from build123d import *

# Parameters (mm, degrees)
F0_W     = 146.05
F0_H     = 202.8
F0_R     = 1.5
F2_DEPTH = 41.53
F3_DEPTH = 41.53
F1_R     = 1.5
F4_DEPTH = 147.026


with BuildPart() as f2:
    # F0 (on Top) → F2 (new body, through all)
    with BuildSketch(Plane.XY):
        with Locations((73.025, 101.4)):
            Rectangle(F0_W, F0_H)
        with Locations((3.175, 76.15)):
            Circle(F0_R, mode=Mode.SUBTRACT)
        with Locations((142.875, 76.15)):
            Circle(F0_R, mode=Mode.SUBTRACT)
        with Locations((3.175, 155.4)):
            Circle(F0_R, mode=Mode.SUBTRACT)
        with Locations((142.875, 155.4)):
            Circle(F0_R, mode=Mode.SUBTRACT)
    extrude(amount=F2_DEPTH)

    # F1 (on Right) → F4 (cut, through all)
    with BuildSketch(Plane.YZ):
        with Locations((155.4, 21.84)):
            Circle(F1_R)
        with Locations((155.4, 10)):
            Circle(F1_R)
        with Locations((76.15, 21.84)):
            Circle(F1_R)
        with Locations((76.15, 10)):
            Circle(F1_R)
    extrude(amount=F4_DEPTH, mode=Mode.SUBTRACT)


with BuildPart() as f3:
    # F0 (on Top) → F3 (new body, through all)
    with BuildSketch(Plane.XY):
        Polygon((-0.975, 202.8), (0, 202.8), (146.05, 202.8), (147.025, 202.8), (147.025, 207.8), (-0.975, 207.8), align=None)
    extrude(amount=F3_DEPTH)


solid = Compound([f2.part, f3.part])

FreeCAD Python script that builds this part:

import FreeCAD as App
import Part
import Sketcher
Q = App.Units.Quantity


def add_polygon(sketch, points):
    """Adds a closed chain of lines whose ends are joined by coincident constraints."""
    first, n = sketch.GeometryCount, len(points)
    for a, b in zip(points, points[1:] + points[:1]):
        sketch.addGeometry(Part.LineSegment(App.Vector(*a, 0), App.Vector(*b, 0)), False)
    for i in range(n):
        sketch.addConstraint(Sketcher.Constraint("Coincident", first + i, 2, first + (i + 1) % n, 1))

doc = App.newDocument("Part")
params = doc.addObject("Spreadsheet::Sheet", "Params")
for row, (alias, value) in enumerate([
    ("sketch1_diameter", "3 mm"),
    ("sketch1_height", "202.8 mm"),
    ("sketch1_width", "146.05 mm"),
    ("pad1_length", "41.53 mm"),
    ("sketch2_diameter", "3 mm"),
    ("sketch3_width", "148 mm"),
    ("sketch3_height", "5 mm"),
    ("pad2_length", "41.53 mm"),
], start=1):
    params.set(f"A{row}", alias)
    params.set(f"B{row}", "=" + value)
    params.setAlias(f"B{row}", alias)

body = doc.addObject("PartDesign::Body", "Body")

# Sketch on XY plane
sketch1 = body.newObject("Sketcher::SketchObject", "Sketch")
sketch1.AttachmentSupport = (doc.getObject("XY_Plane"), [""])
sketch1.MapMode = "FlatFace"
add_polygon(sketch1, [(0, 202.8), (0, 0), (146.1, 0), (146.1, 202.8)])  # lines 0-3
sketch1.addGeometry(Part.Circle(App.Vector(3.2, 76.2, 0), App.Vector(0, 0, 1), 1.5), False)  # 4
sketch1.addGeometry(Part.Circle(App.Vector(142.9, 76.2, 0), App.Vector(0, 0, 1), 1.5), False)  # 5
sketch1.addGeometry(Part.Circle(App.Vector(3.2, 155.4, 0), App.Vector(0, 0, 1), 1.5), False)  # 6
sketch1.addGeometry(Part.Circle(App.Vector(142.9, 155.4, 0), App.Vector(0, 0, 1), 1.5), False)  # 7
sketch1.addConstraint([
    Sketcher.Constraint("Vertical", 0),
    Sketcher.Constraint("Horizontal", 1),
    Sketcher.Constraint("Vertical", 2),
    Sketcher.Constraint("Horizontal", 3),
    Sketcher.Constraint("Coincident", 0, 2, -1, 1),
    Sketcher.Constraint("Equal", 4, 5),
    Sketcher.Constraint("Equal", 5, 6),
    Sketcher.Constraint("Equal", 6, 7),
    Sketcher.Constraint("Horizontal", 4, 3, 5, 3),
    Sketcher.Constraint("Horizontal", 6, 3, 7, 3),
    Sketcher.Constraint("Vertical", 4, 3, 6, 3),
    Sketcher.Constraint("Vertical", 5, 3, 7, 3),
    Sketcher.Constraint("Diameter", 4, Q("3 mm")),
    Sketcher.Constraint("DistanceY", 0, 2, 0, 1, Q("202.8 mm")),
    Sketcher.Constraint("DistanceX", 1, 1, 1, 2, Q("146.05 mm")),
    Sketcher.Constraint("DistanceY", -1, 1, 6, 3, Q("155.4 mm")),
    Sketcher.Constraint("DistanceX", 4, 3, 5, 3, Q("139.7 mm")),
    Sketcher.Constraint("DistanceY", -1, 1, 4, 3, Q("76.15 mm")),
    Sketcher.Constraint("DistanceX", -1, 1, 4, 3, Q("3.175 mm")),
])
sketch1.setExpression("Constraints[16]", "Params.sketch1_diameter")
sketch1.setExpression("Constraints[17]", "Params.sketch1_height")
sketch1.setExpression("Constraints[18]", "Params.sketch1_width")
pad1 = body.newObject("PartDesign::Pad", "Pad")
pad1.Profile = sketch1
pad1.setExpression("Length", "Params.pad1_length")

# Sketch on YZ plane
sketch2 = body.newObject("Sketcher::SketchObject", "Sketch001")
sketch2.AttachmentSupport = (doc.getObject("YZ_Plane"), [""])
sketch2.MapMode = "FlatFace"
sketch2.addGeometry([
    Part.Circle(App.Vector(155.4, 21.8, 0), App.Vector(0, 0, 1), 1.5),
    Part.Circle(App.Vector(155.4, 10, 0), App.Vector(0, 0, 1), 1.5),
    Part.Circle(App.Vector(76.2, 21.8, 0), App.Vector(0, 0, 1), 1.5),
    Part.Circle(App.Vector(76.2, 10, 0), App.Vector(0, 0, 1), 1.5),
], False)
sketch2.addConstraint([
    Sketcher.Constraint("Equal", 0, 1),
    Sketcher.Constraint("Equal", 1, 2),
    Sketcher.Constraint("Equal", 2, 3),
    Sketcher.Constraint("Horizontal", 0, 3, 2, 3),
    Sketcher.Constraint("Horizontal", 1, 3, 3, 3),
    Sketcher.Constraint("Vertical", 0, 3, 1, 3),
    Sketcher.Constraint("Vertical", 2, 3, 3, 3),
    Sketcher.Constraint("Diameter", 0, Q("3 mm")),
    Sketcher.Constraint("DistanceY", -1, 1, 1, 3, Q("10 mm")),
    Sketcher.Constraint("DistanceX", -1, 1, 0, 3, Q("155.4 mm")),
    Sketcher.Constraint("DistanceY", -1, 1, 0, 3, Q("21.84 mm")),
    Sketcher.Constraint("DistanceX", -1, 1, 2, 3, Q("76.15 mm")),
])
sketch2.setExpression("Constraints[7]", "Params.sketch2_diameter")
pocket1 = body.newObject("PartDesign::Pocket", "Pocket")
pocket1.Profile = sketch2
pocket1.Type = "ThroughAll"
pocket1.Reversed = True
body2 = doc.addObject("PartDesign::Body", "Body001")

# Sketch on XY plane
sketch3 = body2.newObject("Sketcher::SketchObject", "Sketch002")
sketch3.AttachmentSupport = (doc.getObject("XY_Plane001"), [""])
sketch3.MapMode = "FlatFace"
add_polygon(sketch3, [(-1, 203), (147, 203), (147, 208), (-1, 208)])  # lines 0-3
sketch3.addConstraint([
    Sketcher.Constraint("Horizontal", 0),
    Sketcher.Constraint("Vertical", 1),
    Sketcher.Constraint("Horizontal", 2),
    Sketcher.Constraint("Vertical", 3),
    Sketcher.Constraint("DistanceX", 0, 1, 0, 2, Q("148 mm")),
    Sketcher.Constraint("DistanceY", 1, 1, 1, 2, Q("5 mm")),
    Sketcher.Constraint("DistanceY", -1, 1, 0, 2, Q("202.8 mm")),
    Sketcher.Constraint("DistanceX", -1, 1, 0, 2, Q("147.025 mm")),
])
sketch3.setExpression("Constraints[8]", "Params.sketch3_width")
sketch3.setExpression("Constraints[9]", "Params.sketch3_height")
pad2 = body2.newObject("PartDesign::Pad", "Pad001")
pad2.Profile = sketch3
pad2.setExpression("Length", "Params.pad2_length")

doc.recompute()
